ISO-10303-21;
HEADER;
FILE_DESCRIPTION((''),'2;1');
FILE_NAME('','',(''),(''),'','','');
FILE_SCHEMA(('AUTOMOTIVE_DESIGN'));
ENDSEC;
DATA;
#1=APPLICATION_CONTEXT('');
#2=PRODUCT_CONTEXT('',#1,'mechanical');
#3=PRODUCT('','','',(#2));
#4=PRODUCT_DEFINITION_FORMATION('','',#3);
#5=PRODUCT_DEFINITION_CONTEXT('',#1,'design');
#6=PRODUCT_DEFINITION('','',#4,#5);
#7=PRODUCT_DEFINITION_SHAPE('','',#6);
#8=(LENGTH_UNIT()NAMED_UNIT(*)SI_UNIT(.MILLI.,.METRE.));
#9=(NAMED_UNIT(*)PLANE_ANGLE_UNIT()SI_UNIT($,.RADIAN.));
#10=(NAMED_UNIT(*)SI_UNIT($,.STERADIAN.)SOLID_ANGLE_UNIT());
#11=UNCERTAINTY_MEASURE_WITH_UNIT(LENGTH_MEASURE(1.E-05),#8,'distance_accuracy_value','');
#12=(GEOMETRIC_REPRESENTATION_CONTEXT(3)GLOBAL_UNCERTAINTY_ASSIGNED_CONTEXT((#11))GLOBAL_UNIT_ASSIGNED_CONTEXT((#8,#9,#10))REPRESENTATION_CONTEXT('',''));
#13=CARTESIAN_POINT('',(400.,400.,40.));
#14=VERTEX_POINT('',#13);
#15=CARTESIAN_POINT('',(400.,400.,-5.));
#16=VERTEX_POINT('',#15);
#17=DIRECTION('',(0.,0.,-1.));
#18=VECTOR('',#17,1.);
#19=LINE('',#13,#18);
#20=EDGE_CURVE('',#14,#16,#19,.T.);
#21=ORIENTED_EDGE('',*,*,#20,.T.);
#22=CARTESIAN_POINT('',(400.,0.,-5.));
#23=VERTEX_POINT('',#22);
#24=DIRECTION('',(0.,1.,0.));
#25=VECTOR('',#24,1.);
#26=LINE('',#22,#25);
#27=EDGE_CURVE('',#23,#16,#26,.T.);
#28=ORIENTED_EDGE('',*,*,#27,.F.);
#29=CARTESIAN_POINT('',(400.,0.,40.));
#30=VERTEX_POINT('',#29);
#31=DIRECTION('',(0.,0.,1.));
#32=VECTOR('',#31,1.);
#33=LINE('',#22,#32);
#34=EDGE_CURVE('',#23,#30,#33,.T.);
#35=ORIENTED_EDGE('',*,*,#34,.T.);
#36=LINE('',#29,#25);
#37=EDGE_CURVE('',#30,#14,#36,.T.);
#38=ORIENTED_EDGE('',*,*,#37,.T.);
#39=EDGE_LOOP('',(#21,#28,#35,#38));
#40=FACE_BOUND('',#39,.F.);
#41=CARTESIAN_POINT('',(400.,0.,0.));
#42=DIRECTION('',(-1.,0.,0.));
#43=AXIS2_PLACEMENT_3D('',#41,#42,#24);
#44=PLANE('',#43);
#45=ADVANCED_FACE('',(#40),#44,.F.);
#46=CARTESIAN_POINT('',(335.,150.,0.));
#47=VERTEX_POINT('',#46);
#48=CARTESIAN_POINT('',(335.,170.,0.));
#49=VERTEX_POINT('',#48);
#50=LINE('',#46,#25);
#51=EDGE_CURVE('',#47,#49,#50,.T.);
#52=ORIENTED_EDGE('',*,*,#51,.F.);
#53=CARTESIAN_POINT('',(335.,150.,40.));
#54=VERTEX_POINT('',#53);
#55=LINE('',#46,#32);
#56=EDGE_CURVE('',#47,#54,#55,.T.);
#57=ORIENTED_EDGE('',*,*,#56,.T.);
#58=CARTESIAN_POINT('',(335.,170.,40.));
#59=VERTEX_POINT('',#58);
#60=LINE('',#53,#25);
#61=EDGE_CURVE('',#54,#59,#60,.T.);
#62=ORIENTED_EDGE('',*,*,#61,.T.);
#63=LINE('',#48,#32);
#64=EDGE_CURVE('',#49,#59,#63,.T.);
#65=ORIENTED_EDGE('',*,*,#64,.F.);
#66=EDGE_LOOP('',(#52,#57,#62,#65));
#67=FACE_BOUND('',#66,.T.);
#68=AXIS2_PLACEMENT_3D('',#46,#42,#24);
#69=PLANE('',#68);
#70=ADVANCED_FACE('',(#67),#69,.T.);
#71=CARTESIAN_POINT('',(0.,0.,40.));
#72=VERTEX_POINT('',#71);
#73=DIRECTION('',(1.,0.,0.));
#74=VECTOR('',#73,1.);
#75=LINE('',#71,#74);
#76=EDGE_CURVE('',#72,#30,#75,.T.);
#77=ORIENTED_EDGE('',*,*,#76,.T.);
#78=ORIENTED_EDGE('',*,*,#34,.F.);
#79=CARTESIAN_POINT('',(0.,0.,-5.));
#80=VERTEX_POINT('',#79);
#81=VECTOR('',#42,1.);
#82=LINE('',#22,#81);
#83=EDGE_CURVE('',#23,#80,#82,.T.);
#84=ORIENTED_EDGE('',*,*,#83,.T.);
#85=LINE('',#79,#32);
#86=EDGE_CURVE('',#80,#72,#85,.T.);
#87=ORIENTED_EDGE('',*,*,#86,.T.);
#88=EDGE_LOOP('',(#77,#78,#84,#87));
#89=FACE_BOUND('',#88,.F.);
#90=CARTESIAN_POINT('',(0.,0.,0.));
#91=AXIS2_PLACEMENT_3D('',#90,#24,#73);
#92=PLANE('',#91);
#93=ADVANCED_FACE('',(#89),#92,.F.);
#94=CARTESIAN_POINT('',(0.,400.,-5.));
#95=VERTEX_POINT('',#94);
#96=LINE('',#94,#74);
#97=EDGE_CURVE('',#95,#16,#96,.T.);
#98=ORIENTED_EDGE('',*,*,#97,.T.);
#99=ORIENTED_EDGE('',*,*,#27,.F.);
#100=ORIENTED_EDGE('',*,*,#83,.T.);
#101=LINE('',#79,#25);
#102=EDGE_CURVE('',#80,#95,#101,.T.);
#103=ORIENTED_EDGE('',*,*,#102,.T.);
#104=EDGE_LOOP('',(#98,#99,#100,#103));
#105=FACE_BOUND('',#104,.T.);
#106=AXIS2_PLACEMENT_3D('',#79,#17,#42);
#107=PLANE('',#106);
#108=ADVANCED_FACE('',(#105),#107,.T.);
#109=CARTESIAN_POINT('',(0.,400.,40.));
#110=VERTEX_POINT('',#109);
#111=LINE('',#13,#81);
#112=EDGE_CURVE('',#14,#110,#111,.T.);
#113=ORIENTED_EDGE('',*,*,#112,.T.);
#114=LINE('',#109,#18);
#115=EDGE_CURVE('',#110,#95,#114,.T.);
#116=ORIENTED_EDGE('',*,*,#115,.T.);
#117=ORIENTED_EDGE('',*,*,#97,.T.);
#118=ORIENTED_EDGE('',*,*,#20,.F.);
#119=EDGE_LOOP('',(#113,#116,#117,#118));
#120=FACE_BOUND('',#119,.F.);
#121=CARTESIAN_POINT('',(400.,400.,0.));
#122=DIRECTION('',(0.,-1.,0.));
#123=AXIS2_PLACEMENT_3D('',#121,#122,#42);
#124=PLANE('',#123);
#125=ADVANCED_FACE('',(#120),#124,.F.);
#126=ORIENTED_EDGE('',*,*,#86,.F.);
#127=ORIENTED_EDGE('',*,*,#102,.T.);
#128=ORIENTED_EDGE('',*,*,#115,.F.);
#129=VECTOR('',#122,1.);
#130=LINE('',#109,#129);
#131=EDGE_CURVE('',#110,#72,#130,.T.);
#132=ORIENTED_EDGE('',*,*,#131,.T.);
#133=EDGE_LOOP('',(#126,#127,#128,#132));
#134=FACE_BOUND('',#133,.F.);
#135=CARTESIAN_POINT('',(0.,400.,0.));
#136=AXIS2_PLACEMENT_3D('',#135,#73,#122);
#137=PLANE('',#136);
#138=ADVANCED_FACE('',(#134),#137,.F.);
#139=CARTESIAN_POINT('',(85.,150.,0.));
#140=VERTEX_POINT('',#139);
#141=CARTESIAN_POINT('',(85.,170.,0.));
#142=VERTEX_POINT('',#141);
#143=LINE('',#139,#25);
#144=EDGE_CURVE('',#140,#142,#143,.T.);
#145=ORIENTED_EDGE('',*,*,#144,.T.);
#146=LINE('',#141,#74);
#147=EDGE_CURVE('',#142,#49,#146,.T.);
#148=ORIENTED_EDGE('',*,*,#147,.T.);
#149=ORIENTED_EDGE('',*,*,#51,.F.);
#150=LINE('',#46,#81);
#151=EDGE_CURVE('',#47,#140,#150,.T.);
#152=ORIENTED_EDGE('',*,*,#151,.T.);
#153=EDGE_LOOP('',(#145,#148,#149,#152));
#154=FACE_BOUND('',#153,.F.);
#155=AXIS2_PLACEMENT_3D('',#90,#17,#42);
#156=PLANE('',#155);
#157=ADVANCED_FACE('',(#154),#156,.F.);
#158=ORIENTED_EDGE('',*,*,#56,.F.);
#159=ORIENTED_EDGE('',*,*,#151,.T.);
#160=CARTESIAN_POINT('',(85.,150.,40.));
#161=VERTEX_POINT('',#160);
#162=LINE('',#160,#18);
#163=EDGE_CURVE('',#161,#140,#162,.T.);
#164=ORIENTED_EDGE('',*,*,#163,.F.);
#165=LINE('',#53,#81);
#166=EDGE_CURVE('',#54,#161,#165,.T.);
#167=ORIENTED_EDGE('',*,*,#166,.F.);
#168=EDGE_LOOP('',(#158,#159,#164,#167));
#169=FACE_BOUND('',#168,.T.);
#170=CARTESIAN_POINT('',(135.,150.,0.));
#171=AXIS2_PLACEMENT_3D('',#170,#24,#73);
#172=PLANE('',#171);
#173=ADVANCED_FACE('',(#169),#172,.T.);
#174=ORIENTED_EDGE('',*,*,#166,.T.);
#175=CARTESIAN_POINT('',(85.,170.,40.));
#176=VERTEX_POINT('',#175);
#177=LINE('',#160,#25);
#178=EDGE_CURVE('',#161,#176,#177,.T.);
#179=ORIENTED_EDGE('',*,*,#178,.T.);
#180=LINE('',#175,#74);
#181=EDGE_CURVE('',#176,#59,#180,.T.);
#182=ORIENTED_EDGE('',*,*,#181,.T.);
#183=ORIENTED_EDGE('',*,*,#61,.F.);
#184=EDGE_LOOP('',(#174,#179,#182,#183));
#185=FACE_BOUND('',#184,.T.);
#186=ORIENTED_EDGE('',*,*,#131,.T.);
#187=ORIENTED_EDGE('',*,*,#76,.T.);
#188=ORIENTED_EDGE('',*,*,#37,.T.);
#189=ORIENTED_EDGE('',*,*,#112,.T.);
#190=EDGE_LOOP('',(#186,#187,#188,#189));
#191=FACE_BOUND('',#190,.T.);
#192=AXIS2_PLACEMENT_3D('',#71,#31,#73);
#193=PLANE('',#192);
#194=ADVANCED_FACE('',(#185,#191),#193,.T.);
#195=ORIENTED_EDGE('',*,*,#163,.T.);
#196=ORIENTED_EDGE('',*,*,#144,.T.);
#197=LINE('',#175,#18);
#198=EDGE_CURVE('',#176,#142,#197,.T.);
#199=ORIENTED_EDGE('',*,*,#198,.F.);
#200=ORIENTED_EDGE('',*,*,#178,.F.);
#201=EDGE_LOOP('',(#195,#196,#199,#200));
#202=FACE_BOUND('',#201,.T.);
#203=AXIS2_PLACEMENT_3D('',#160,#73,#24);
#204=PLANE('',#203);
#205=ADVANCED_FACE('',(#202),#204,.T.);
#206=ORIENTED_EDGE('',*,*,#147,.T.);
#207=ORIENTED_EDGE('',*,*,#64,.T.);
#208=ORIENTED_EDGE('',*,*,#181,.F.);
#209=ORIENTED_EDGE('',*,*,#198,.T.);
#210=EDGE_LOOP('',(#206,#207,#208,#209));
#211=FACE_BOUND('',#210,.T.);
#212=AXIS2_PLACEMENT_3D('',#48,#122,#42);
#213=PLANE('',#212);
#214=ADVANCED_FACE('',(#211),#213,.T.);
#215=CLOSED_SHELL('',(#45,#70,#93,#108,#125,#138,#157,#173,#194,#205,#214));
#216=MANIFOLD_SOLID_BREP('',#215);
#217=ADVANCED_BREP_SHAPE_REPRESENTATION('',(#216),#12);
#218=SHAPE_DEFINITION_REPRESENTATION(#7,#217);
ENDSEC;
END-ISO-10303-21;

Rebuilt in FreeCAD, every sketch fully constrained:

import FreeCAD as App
import Part
import Sketcher

V = App.Vector
Q = App.Units.Quantity


def add_polygon(sketch, points):
    """Adds a closed chain of lines whose ends are joined by coincident constraints."""
    first, n = sketch.GeometryCount, len(points)
    for a, b in zip(points, points[1:] + points[:1]):
        sketch.addGeometry(Part.LineSegment(App.Vector(*a, 0), App.Vector(*b, 0)), False)
    for i in range(n):
        sketch.addConstraint(Sketcher.Constraint("Coincident", first + i, 2, first + (i + 1) % n, 1))

doc = App.newDocument("Part")
body = doc.addObject("PartDesign::Body", "Body")

# Sketch on XY plane
sketch1 = doc.addObject("Sketcher::SketchObject", "Sketch")
body.addObject(sketch1)
sketch1.AttachmentSupport = (doc.XY_Plane, [""])
sketch1.MapMode = "FlatFace"
add_polygon(sketch1, [(0, 400), (0, 0), (400, 0), (400, 400)])  # lines 0-3
add_polygon(sketch1, [(335, 150), (135, 150), (135, 170), (335, 170)])  # lines 4-7
sketch1.addConstraint(Sketcher.Constraint("Vertical", 0))
sketch1.addConstraint(Sketcher.Constraint("Horizontal", 1))
sketch1.addConstraint(Sketcher.Constraint("Vertical", 2))
sketch1.addConstraint(Sketcher.Constraint("Horizontal", 3))
sketch1.addConstraint(Sketcher.Constraint("Horizontal", 4))
sketch1.addConstraint(Sketcher.Constraint("Vertical", 5))
sketch1.addConstraint(Sketcher.Constraint("Horizontal", 6))
sketch1.addConstraint(Sketcher.Constraint("Vertical", 7))
sketch1.addConstraint(Sketcher.Constraint("Coincident", 0, 2, -1, 1))
sketch1.addConstraint(Sketcher.Constraint("Equal", 3, 0))
sketch1.addConstraint(Sketcher.Constraint("DistanceX", 1, 1, 1, 2, Q("400 mm")))
sketch1.addConstraint(Sketcher.Constraint("DistanceX", 4, 2, 4, 1, Q("200 mm")))
sketch1.addConstraint(Sketcher.Constraint("DistanceY", 5, 1, 5, 2, Q("20 mm")))
sketch1.addConstraint(Sketcher.Constraint("DistanceX", -1, 1, 4, 2, Q("135 mm")))
sketch1.addConstraint(Sketcher.Constraint("DistanceY", -1, 1, 4, 2, Q("150 mm")))
pad1 = doc.addObject("PartDesign::Pad", "Pad")
body.addObject(pad1)
pad1.Profile = sketch1
pad1.Length = 40

# Sketch on XY plane
sketch2 = doc.addObject("Sketcher::SketchObject", "Sketch001")
body.addObject(sketch2)
sketch2.AttachmentSupport = (doc.XY_Plane, [""])
sketch2.MapMode = "FlatFace"
add_polygon(sketch2, [(400, 400), (400, 0), (0, 0), (0, 400)])  # lines 0-3
sketch2.addConstraint(Sketcher.Constraint("Vertical", 0))
sketch2.addConstraint(Sketcher.Constraint("Horizontal", 1))
sketch2.addConstraint(Sketcher.Constraint("Vertical", 2))
sketch2.addConstraint(Sketcher.Constraint("Horizontal", 3))
sketch2.addConstraint(Sketcher.Constraint("Coincident", 1, 2, -1, 1))
sketch2.addConstraint(Sketcher.Constraint("Equal", 3, 0))
sketch2.addConstraint(Sketcher.Constraint("DistanceX", 1, 2, 1, 1, Q("400 mm")))
pad2 = doc.addObject("PartDesign::Pad", "Pad001")
body.addObject(pad2)
pad2.Profile = sketch2
pad2.Length = 5
pad2.Reversed = True

# Sketch on XY plane
sketch3 = doc.addObject("Sketcher::SketchObject", "Sketch002")
body.addObject(sketch3)
sketch3.AttachmentSupport = (doc.XY_Plane, [""])
sketch3.MapMode = "FlatFace"
sketch3.AttachmentOffset = App.Placement(V(0, 0, 40), App.Rotation())
add_polygon(sketch3, [(85, 150), (135, 150), (135, 170), (85, 170)])  # lines 0-3
sketch3.addConstraint(Sketcher.Constraint("Horizontal", 0))
sketch3.addConstraint(Sketcher.Constraint("Vertical", 1))
sketch3.addConstraint(Sketcher.Constraint("Horizontal", 2))
sketch3.addConstraint(Sketcher.Constraint("Vertical", 3))
sketch3.addConstraint(Sketcher.Constraint("DistanceX", 0, 1, 0, 2, Q("50 mm")))
sketch3.addConstraint(Sketcher.Constraint("DistanceY", 1, 1, 1, 2, Q("20 mm")))
sketch3.addConstraint(Sketcher.Constraint("DistanceX", -1, 1, 0, 2, Q("135 mm")))
sketch3.addConstraint(Sketcher.Constraint("DistanceY", -1, 1, 0, 2, Q("150 mm")))
pocket1 = doc.addObject("PartDesign::Pocket", "Pocket")
body.addObject(pocket1)
pocket1.Profile = sketch3
pocket1.Length = 40

doc.recompute()
